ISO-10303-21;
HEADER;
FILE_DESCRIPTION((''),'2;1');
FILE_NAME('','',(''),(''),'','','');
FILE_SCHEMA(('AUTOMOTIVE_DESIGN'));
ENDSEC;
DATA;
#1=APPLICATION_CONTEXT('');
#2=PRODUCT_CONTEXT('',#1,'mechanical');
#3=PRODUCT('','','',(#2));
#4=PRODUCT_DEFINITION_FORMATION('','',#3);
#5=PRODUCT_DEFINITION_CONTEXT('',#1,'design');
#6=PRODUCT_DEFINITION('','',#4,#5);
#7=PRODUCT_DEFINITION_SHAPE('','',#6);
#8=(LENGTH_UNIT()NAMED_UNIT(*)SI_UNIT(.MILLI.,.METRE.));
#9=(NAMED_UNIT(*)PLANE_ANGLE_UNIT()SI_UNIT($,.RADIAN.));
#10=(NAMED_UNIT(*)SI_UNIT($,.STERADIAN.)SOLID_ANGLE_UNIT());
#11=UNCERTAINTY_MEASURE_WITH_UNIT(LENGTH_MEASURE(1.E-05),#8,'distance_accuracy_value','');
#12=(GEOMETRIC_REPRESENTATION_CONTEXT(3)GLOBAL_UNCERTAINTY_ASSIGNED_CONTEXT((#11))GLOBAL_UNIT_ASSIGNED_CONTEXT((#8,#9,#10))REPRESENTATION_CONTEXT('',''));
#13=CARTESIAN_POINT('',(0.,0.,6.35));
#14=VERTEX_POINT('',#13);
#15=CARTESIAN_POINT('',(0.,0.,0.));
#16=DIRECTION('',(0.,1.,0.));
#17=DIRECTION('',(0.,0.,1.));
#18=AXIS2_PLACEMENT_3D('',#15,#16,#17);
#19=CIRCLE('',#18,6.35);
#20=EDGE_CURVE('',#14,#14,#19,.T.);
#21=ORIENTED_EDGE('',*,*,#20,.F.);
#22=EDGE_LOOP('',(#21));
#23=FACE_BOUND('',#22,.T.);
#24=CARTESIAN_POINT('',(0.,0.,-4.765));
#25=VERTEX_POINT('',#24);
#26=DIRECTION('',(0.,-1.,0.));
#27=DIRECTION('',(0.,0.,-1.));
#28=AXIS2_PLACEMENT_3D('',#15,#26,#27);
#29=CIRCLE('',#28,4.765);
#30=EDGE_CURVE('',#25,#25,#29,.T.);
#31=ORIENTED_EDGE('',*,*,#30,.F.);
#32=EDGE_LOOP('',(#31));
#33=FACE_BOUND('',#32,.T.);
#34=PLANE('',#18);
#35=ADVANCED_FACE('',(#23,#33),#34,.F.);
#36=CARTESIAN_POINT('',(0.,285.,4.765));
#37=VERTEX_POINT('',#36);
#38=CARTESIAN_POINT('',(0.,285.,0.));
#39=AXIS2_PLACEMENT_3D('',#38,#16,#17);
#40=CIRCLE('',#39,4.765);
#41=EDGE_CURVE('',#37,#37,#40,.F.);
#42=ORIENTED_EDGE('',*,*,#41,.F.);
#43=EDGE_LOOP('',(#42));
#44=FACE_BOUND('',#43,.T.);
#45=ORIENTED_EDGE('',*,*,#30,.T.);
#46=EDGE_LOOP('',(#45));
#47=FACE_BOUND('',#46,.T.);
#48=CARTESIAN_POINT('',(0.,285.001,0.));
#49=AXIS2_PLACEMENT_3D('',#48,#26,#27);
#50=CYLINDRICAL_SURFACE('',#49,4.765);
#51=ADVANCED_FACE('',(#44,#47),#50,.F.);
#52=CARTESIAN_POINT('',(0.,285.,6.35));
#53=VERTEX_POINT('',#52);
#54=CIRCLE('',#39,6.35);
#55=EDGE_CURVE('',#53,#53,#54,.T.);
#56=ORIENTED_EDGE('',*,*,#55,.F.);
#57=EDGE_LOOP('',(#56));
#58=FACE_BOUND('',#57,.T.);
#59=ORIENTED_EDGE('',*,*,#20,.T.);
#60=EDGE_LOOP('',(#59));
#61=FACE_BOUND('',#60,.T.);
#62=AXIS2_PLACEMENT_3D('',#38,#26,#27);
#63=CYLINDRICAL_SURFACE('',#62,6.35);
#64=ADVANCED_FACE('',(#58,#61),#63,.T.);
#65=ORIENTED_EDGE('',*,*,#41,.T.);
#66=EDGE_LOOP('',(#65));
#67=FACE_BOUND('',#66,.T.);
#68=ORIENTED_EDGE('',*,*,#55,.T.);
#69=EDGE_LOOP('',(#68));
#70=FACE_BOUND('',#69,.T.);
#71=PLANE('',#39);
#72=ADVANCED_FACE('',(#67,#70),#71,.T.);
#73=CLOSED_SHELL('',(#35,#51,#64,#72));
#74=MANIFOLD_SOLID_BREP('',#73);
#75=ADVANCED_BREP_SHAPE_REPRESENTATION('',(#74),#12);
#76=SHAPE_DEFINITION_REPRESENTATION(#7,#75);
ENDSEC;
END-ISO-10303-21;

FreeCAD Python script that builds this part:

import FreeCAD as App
import Part
import Sketcher

doc = App.newDocument("Part")
body = doc.addObject("PartDesign::Body", "Body")

# Sketch on XZ plane
sketch1 = doc.addObject("Sketcher::SketchObject", "Sketch")
body.addObject(sketch1)
sketch1.AttachmentSupport = (doc.XZ_Plane, [""])
sketch1.MapMode = "FlatFace"
sketch1.addGeometry(Part.Circle(App.Vector(0, 0, 0), App.Vector(0, 0, 1), 6), False)
sketch1.addConstraint(Sketcher.Constraint("Coincident", 0, 3, -1, 1))
sketch1.addConstraint(Sketcher.Constraint("Diameter", 0, 12.7))
pad1 = doc.addObject("PartDesign::Pad", "Pad")
body.addObject(pad1)
pad1.Profile = sketch1
pad1.Length = 285
pad1.Reversed = True

# Sketch on XZ plane
sketch2 = doc.addObject("Sketcher::SketchObject", "Sketch001")
body.addObject(sketch2)
sketch2.AttachmentSupport = (doc.XZ_Plane, [""])
sketch2.MapMode = "FlatFace"
sketch2.addGeometry(Part.Circle(App.Vector(0, 0, 0), App.Vector(0, 0, 1), 4.8), False)
sketch2.addConstraint(Sketcher.Constraint("Coincident", 0, 3, -1, 1))
sketch2.addConstraint(Sketcher.Constraint("Diameter", 0, 9.53))
pocket1 = doc.addObject("PartDesign::Pocket", "Pocket")
body.addObject(pocket1)
pocket1.Profile = sketch2
pocket1.Type = "UpToFirst"

doc.recompute()
